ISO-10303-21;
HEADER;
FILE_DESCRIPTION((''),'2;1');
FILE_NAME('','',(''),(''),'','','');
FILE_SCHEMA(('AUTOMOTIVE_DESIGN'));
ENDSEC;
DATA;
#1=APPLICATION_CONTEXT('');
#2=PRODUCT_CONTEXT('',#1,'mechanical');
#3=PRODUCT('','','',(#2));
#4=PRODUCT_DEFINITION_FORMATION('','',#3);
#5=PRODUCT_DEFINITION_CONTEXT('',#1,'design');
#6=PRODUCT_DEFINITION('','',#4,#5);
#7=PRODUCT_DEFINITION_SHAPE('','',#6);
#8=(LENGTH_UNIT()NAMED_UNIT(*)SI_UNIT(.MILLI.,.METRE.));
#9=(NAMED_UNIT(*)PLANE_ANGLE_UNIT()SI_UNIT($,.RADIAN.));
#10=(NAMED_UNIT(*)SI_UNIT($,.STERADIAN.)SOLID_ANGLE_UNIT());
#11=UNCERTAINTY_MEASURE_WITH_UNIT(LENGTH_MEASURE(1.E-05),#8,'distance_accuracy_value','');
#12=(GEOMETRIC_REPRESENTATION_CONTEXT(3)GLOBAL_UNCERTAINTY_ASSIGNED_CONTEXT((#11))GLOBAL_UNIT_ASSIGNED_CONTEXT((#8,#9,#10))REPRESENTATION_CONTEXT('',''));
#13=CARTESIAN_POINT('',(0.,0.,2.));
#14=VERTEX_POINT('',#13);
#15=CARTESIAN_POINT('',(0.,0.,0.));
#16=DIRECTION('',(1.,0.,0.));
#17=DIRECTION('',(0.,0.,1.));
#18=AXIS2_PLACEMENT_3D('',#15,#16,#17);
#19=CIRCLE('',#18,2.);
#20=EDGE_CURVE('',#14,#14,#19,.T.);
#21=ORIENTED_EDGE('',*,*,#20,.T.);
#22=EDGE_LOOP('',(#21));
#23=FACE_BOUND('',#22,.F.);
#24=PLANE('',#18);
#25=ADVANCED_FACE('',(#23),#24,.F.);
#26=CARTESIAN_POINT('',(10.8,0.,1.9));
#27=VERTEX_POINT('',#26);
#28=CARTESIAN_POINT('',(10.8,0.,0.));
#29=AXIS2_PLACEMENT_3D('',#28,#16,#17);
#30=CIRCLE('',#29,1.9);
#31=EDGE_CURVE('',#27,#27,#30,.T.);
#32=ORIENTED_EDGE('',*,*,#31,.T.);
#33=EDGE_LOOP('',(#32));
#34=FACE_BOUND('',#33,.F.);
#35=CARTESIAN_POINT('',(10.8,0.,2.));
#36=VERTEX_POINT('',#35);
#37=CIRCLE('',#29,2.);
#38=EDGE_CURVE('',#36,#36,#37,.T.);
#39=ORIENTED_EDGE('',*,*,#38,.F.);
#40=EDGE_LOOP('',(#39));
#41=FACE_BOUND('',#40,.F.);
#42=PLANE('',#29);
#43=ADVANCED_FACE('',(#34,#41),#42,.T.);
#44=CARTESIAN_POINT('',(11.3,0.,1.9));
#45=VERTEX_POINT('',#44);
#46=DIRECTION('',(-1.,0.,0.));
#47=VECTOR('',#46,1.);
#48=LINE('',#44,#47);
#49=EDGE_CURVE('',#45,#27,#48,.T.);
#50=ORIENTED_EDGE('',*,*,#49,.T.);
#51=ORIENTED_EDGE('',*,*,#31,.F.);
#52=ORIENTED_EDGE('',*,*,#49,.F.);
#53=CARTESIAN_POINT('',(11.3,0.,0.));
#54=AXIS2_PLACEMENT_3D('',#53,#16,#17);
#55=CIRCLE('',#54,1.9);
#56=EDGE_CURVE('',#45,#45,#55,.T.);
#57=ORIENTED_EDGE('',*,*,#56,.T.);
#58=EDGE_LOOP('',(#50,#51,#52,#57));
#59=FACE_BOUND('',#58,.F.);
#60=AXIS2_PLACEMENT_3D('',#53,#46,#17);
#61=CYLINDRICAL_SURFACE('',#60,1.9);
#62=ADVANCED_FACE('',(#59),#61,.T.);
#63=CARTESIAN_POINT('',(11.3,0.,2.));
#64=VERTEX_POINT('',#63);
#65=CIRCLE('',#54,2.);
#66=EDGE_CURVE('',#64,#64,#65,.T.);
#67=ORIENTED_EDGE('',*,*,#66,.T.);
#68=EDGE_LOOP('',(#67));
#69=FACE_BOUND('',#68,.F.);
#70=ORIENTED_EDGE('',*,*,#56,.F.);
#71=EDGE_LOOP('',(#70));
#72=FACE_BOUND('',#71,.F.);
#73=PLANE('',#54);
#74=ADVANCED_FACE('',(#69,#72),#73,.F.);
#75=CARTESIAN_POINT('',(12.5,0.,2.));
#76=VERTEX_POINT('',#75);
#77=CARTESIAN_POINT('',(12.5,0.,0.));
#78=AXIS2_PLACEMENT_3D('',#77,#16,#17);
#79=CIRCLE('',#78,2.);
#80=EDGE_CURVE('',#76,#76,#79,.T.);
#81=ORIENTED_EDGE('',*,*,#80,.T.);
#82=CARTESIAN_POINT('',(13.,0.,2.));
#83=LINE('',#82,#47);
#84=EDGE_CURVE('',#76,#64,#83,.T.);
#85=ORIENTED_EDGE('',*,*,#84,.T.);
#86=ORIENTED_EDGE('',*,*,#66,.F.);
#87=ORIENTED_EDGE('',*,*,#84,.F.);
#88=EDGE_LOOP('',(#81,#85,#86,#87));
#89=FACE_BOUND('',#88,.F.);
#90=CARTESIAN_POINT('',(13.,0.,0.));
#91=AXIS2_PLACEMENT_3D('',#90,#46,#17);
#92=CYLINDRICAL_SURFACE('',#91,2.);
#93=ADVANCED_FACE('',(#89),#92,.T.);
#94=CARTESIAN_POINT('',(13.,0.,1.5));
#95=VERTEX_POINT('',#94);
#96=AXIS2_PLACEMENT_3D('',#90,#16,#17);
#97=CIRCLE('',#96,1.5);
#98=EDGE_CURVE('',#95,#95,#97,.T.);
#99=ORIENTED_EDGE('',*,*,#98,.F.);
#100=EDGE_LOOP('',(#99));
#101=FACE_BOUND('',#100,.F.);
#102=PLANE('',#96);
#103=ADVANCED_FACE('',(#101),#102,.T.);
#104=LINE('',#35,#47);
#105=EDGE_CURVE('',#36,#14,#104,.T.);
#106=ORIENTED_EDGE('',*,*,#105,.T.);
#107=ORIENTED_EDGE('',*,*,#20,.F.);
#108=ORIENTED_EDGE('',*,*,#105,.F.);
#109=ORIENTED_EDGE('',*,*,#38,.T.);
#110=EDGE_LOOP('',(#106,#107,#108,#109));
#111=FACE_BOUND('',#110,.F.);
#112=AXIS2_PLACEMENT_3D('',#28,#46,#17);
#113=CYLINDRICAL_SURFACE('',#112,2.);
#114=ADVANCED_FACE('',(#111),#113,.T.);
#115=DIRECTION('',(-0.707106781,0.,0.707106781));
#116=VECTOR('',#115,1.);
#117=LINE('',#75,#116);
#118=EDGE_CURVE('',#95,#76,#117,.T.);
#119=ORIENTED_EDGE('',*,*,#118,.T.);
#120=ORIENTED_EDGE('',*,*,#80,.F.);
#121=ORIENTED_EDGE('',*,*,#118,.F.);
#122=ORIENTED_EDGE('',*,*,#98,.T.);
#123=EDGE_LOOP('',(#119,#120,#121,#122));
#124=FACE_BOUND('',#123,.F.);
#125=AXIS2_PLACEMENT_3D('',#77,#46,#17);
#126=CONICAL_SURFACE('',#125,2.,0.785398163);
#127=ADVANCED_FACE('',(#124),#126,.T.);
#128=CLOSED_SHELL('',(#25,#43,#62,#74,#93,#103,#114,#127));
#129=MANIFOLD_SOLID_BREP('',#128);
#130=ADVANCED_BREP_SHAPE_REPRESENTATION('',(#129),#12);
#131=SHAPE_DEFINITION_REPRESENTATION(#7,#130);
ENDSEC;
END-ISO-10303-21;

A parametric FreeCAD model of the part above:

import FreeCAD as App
import Part
import Sketcher
Q = App.Units.Quantity


def edges_at(feature, points):
    """Names of the edges that pass closest to the given points."""
    edges = feature.Shape.Edges
    near = lambda p: min(range(len(edges)), key=lambda i: edges[i].distToShape(Part.Vertex(*p))[0])
    return sorted({f"Edge{near(p) + 1}" for p in points})

doc = App.newDocument("Part")
body = doc.addObject("PartDesign::Body", "Body")

sketch1 = body.newObject("Sketcher::SketchObject", "Sketch")
sketch1.AttachmentSupport = (doc.getObject("XZ_Plane"), [""])
sketch1.MapMode = "FlatFace"
sketch1.addGeometry([
    Part.LineSegment(App.Vector(0, 2, 0), App.Vector(0, 0, 0)),
    Part.LineSegment(App.Vector(0, 0, 0), App.Vector(13, 0, 0)),
    Part.LineSegment(App.Vector(13, 0, 0), App.Vector(13, 2, 0)),
    Part.LineSegment(App.Vector(13, 2, 0), App.Vector(11.3, 2, 0)),
    Part.LineSegment(App.Vector(11.3, 2, 0), App.Vector(11.3, 1.9, 0)),
    Part.LineSegment(App.Vector(11.3, 1.9, 0), App.Vector(10.8, 1.9, 0)),
    Part.LineSegment(App.Vector(10.8, 1.9, 0), App.Vector(10.8, 2, 0)),
    Part.LineSegment(App.Vector(10.8, 2, 0), App.Vector(0, 2, 0)),
], False)
sketch1.addConstraint([
    Sketcher.Constraint("Coincident", 0, 2, 1, 1),
    Sketcher.Constraint("Coincident", 1, 2, 2, 1),
    Sketcher.Constraint("Coincident", 2, 2, 3, 1),
    Sketcher.Constraint("Coincident", 3, 2, 4, 1),
    Sketcher.Constraint("Coincident", 4, 2, 5, 1),
    Sketcher.Constraint("Coincident", 5, 2, 6, 1),
    Sketcher.Constraint("Coincident", 6, 2, 7, 1),
    Sketcher.Constraint("Coincident", 7, 2, 0, 1),
    Sketcher.Constraint("Vertical", 0),
    Sketcher.Constraint("Horizontal", 1),
    Sketcher.Constraint("Vertical", 2),
    Sketcher.Constraint("Horizontal", 3),
    Sketcher.Constraint("Vertical", 4),
    Sketcher.Constraint("Horizontal", 5),
    Sketcher.Constraint("Vertical", 6),
    Sketcher.Constraint("Horizontal", 7),
    Sketcher.Constraint("Coincident", 0, 2, -1, 1),
    Sketcher.Constraint("Horizontal", 3, 2, 6, 2),
    Sketcher.Constraint("DistanceX", 1, 1, 1, 2, Q("13 mm")),
    Sketcher.Constraint("DistanceY", 0, 2, 0, 1, Q("2 mm")),
    Sketcher.Constraint("DistanceX", 3, 2, 3, 1, Q("1.7 mm")),
    Sketcher.Constraint("DistanceX", 5, 2, 5, 1, Q("0.5 mm")),
    Sketcher.Constraint("DistanceY", 4, 2, 4, 1, Q("0.1 mm")),
])
revolution = body.newObject("PartDesign::Revolution", "Revolution")
revolution.Profile = sketch1
revolution.ReferenceAxis = (sketch1, ["H_Axis"])
revolution.Angle = 360
doc.recompute()

chamfer = body.newObject("PartDesign::Chamfer", "Chamfer")
chamfer.Base = (revolution, edges_at(revolution, [(13, 0, -2)]))
chamfer.Size = 0.5

doc.recompute()
